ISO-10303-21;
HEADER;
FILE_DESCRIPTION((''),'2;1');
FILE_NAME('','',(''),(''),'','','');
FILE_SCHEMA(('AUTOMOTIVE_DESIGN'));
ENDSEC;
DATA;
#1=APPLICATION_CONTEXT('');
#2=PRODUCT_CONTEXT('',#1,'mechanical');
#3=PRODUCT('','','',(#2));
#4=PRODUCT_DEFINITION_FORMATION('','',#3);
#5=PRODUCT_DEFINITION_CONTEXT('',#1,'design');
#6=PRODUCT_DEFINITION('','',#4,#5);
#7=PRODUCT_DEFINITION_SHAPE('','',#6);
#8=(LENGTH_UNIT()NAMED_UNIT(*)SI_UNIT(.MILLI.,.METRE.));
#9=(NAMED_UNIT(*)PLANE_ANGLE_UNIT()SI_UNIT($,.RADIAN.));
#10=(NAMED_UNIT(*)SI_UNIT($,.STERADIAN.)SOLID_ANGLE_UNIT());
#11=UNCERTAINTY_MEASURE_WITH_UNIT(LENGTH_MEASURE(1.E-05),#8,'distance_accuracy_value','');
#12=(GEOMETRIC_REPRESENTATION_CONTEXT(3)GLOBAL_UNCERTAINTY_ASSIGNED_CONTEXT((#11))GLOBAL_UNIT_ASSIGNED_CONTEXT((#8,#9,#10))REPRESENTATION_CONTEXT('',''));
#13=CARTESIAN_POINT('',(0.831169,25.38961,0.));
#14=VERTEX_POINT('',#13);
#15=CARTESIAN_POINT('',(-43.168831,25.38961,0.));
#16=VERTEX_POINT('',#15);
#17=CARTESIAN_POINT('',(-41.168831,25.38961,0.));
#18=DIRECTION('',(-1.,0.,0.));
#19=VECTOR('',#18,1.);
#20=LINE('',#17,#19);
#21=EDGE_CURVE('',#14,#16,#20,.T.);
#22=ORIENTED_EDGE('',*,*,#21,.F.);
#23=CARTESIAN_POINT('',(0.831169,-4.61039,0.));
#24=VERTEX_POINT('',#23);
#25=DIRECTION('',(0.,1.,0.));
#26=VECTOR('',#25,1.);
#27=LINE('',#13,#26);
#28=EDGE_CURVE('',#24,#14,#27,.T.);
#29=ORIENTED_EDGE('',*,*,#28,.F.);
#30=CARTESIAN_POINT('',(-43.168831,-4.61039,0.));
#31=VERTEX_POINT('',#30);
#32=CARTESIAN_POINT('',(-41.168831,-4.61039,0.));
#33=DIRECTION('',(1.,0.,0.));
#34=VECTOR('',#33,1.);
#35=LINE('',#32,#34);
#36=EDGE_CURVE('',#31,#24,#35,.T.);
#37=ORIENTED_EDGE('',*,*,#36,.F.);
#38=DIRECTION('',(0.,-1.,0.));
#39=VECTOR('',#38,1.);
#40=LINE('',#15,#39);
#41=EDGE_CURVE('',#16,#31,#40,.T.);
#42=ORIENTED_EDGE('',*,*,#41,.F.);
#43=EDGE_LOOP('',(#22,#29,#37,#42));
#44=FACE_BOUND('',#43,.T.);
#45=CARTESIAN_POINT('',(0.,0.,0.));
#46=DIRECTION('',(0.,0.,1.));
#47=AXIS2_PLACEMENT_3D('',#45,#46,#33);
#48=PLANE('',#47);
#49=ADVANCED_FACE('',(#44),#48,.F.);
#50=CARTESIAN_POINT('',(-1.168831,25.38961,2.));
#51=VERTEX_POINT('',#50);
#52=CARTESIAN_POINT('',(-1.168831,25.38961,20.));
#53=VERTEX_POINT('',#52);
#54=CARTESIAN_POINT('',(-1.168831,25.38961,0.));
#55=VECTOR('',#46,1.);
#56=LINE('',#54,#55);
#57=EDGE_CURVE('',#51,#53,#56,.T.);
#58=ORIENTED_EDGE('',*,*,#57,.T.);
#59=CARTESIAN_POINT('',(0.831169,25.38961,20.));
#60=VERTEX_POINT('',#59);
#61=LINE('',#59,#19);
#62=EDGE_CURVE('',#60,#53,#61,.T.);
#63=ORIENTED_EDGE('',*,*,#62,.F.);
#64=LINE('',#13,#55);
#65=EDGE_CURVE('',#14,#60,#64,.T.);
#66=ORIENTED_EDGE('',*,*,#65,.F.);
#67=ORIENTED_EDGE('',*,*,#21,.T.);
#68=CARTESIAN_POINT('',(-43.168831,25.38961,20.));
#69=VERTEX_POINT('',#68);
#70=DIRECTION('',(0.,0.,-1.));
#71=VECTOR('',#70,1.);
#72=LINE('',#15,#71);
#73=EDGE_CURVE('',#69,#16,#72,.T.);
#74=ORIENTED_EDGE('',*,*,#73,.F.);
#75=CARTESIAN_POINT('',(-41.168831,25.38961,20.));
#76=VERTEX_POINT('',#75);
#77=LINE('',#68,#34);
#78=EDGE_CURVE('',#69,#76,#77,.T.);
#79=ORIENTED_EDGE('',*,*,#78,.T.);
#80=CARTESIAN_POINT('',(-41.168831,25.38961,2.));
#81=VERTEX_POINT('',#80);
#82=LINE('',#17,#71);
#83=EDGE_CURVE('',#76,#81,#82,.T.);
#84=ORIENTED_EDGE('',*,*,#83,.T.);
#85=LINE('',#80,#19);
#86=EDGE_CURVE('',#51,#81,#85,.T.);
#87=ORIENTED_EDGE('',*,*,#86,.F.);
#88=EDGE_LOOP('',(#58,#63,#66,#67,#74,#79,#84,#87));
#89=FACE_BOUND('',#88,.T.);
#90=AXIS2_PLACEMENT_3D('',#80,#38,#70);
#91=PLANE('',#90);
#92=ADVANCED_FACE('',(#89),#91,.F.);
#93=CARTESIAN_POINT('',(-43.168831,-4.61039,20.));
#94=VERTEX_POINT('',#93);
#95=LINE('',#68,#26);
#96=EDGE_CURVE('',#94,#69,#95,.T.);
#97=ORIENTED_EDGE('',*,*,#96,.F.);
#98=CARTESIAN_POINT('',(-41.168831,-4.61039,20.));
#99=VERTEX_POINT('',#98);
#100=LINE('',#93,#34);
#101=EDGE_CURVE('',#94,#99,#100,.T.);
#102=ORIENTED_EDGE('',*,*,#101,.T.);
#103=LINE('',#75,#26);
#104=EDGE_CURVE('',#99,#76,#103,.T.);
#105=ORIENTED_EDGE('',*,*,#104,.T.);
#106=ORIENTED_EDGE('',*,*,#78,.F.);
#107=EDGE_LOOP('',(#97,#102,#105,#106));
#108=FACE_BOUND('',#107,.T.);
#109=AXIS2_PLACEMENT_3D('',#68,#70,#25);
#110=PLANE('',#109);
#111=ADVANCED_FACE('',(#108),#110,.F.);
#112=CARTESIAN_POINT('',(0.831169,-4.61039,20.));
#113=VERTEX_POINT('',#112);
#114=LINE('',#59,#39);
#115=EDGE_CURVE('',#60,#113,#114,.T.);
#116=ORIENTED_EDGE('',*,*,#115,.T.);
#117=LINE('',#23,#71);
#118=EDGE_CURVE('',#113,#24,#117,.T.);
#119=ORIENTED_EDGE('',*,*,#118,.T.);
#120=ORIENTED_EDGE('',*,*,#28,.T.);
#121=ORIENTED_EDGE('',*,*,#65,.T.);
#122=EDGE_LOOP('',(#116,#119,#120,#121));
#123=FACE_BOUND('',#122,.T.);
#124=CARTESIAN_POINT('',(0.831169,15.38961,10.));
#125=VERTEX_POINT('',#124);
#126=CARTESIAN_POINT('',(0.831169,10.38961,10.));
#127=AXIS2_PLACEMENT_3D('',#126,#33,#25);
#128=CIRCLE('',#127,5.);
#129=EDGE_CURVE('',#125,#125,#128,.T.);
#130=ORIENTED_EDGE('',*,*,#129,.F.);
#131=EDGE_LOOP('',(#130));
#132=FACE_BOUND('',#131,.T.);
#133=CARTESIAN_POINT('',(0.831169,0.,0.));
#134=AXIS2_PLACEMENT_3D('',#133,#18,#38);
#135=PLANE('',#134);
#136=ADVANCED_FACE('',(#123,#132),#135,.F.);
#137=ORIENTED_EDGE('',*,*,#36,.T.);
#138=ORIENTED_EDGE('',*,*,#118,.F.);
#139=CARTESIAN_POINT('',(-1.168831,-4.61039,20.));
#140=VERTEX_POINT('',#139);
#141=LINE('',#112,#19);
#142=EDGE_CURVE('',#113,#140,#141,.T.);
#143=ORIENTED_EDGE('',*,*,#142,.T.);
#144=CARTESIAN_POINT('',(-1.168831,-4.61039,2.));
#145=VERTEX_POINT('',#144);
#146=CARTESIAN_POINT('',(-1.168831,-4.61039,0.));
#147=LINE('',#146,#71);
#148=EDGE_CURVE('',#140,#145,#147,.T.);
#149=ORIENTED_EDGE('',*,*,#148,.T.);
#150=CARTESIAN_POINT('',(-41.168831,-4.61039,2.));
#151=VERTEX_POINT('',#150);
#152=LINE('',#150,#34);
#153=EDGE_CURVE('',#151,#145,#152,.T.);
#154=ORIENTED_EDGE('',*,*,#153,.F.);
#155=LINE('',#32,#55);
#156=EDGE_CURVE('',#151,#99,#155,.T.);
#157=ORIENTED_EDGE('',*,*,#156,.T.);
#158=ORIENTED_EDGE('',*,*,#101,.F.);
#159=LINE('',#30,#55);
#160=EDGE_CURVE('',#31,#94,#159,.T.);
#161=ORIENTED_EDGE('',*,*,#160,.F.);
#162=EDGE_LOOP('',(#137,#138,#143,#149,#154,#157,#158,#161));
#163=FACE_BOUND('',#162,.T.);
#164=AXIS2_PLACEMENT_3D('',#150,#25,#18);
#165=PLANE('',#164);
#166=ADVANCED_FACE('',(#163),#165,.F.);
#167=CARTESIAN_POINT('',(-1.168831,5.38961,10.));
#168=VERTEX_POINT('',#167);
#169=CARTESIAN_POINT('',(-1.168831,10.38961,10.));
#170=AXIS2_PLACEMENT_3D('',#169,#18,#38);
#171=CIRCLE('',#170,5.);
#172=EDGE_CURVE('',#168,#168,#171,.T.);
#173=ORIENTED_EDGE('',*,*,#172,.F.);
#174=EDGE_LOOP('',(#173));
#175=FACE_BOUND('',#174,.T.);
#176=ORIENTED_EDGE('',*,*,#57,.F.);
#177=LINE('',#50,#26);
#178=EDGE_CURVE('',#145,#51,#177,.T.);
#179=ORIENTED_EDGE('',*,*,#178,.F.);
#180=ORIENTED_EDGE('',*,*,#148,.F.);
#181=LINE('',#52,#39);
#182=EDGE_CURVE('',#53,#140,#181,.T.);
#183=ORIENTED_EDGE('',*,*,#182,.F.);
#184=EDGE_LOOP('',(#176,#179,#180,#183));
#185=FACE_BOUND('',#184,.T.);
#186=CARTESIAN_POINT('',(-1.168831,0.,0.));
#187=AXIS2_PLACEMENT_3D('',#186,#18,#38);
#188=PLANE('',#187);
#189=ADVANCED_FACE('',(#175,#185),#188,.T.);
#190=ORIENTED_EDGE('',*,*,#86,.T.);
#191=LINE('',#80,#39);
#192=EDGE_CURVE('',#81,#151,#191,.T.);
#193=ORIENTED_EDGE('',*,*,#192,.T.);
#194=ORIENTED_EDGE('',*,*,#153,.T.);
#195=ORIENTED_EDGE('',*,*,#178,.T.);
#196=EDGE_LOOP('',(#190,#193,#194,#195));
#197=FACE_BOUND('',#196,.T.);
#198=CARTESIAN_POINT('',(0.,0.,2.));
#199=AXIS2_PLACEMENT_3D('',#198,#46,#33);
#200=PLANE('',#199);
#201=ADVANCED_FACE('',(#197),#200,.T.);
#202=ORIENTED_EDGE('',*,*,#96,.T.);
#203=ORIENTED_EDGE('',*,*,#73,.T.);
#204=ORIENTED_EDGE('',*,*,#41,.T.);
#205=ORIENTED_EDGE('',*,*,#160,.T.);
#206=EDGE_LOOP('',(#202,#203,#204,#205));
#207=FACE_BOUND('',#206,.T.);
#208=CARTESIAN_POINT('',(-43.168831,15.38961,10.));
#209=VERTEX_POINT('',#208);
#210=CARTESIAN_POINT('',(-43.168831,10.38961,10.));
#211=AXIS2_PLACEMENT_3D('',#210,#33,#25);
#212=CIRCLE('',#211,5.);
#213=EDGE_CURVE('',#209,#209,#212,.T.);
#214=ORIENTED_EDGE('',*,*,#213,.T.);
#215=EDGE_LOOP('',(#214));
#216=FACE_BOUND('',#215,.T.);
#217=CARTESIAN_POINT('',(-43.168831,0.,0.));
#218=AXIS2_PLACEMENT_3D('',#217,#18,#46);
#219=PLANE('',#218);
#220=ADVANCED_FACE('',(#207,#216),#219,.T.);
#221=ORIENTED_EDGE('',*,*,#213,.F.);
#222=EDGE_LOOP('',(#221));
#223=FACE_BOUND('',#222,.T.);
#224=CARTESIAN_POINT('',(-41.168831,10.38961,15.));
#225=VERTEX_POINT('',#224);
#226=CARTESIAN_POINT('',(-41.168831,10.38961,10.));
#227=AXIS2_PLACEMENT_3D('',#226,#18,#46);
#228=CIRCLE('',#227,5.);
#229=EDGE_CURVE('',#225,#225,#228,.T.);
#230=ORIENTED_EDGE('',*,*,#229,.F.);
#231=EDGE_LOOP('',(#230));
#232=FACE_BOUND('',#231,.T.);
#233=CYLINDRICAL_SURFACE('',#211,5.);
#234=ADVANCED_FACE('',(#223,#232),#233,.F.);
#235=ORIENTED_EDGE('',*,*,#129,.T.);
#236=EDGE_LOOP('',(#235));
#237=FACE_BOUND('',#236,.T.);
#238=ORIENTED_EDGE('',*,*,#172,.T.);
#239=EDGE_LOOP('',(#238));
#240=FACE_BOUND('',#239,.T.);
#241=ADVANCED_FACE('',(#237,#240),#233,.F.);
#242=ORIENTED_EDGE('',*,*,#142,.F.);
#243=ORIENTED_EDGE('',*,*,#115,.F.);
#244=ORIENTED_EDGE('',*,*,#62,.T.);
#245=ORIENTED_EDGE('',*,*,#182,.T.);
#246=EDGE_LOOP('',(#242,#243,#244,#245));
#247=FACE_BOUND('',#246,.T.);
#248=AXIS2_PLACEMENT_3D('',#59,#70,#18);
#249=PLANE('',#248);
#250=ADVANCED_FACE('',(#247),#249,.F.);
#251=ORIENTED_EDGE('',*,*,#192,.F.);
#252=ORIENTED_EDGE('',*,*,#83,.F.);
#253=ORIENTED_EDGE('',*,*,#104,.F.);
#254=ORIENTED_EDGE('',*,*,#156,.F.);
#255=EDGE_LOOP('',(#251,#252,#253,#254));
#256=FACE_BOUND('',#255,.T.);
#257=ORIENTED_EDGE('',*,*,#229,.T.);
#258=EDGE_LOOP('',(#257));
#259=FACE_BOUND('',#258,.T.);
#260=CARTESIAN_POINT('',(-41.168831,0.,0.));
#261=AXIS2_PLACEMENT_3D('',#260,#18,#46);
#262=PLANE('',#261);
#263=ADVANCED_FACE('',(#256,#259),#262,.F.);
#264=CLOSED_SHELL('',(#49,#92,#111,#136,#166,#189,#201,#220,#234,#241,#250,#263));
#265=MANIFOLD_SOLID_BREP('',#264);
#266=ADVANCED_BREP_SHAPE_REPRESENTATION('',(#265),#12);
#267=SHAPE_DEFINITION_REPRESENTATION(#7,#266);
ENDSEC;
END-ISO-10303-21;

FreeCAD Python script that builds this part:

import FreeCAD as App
import Part
import Sketcher
from FreeCAD import Vector

doc = App.newDocument("Part")
body = doc.addObject("PartDesign::Body", "Body")

# Sketch on XY plane
sketch1 = body.newObject("Sketcher::SketchObject", "Sketch")
sketch1.AttachmentSupport = (doc.getObject("XY_Plane"), [""])
sketch1.MapMode = "FlatFace"
sketch1.addGeometry(Part.LineSegment(Vector(-41, 25, 0), Vector(-41, -5, 0)), False)
sketch1.addGeometry(Part.LineSegment(Vector(-41, -5, 0), Vector(-1, -5, 0)), False)
sketch1.addGeometry(Part.LineSegment(Vector(-1, -5, 0), Vector(-1, 25, 0)), False)
sketch1.addGeometry(Part.LineSegment(Vector(-1, 25, 0), Vector(-41, 25, 0)), False)
sketch1.addConstraint(Sketcher.Constraint("Coincident", 0, 2, 1, 1))
sketch1.addConstraint(Sketcher.Constraint("Coincident", 1, 2, 2, 1))
sketch1.addConstraint(Sketcher.Constraint("Coincident", 2, 2, 3, 1))
sketch1.addConstraint(Sketcher.Constraint("Coincident", 3, 2, 0, 1))
sketch1.addConstraint(Sketcher.Constraint("Vertical", 0))
sketch1.addConstraint(Sketcher.Constraint("Horizontal", 1))
sketch1.addConstraint(Sketcher.Constraint("Vertical", 2))
sketch1.addConstraint(Sketcher.Constraint("Horizontal", 3))
sketch1.addConstraint(Sketcher.Constraint("DistanceX", 1, 1, 1, 2, 40.0))
sketch1.addConstraint(Sketcher.Constraint("DistanceY", 0, 2, 0, 1, 30.0))
sketch1.addConstraint(Sketcher.Constraint("DistanceX", 0, 2, -1, 1, 41.168831))
sketch1.addConstraint(Sketcher.Constraint("DistanceY", 0, 2, -1, 1, 4.61039))
pad1 = body.newObject("PartDesign::Pad", "Pad")
pad1.Profile = sketch1
pad1.Length = 2

# Sketch on YZ plane
sketch2 = body.newObject("Sketcher::SketchObject", "Sketch001")
sketch2.AttachmentSupport = (doc.getObject("YZ_Plane"), [""])
sketch2.MapMode = "FlatFace"
sketch2.AttachmentOffset = App.Placement(Vector(0, 0, -41.168831), App.Rotation())
sketch2.addGeometry(Part.LineSegment(Vector(25, 0, 0), Vector(-5, 0, 0)), False)
sketch2.addGeometry(Part.LineSegment(Vector(-5, 0, 0), Vector(-5, 20, 0)), False)
sketch2.addGeometry(Part.LineSegment(Vector(-5, 20, 0), Vector(25, 20, 0)), False)
sketch2.addGeometry(Part.LineSegment(Vector(25, 20, 0), Vector(25, 0, 0)), False)
sketch2.addConstraint(Sketcher.Constraint("Coincident", 0, 2, 1, 1))
sketch2.addConstraint(Sketcher.Constraint("Coincident", 1, 2, 2, 1))
sketch2.addConstraint(Sketcher.Constraint("Coincident", 2, 2, 3, 1))
sketch2.addConstraint(Sketcher.Constraint("Coincident", 3, 2, 0, 1))
sketch2.addConstraint(Sketcher.Constraint("Horizontal", 0))
sketch2.addConstraint(Sketcher.Constraint("Vertical", 1))
sketch2.addConstraint(Sketcher.Constraint("Horizontal", 2))
sketch2.addConstraint(Sketcher.Constraint("Vertical", 3))
sketch2.addConstraint(Sketcher.Constraint("PointOnObject", 0, 2, -1))
sketch2.addConstraint(Sketcher.Constraint("DistanceX", 0, 2, 0, 1, 30.0))
sketch2.addConstraint(Sketcher.Constraint("DistanceY", 1, 1, 1, 2, 20.0))
sketch2.addConstraint(Sketcher.Constraint("DistanceX", 0, 2, -1, 1, 4.61039))
pad2 = body.newObject("PartDesign::Pad", "Pad001")
pad2.Profile = sketch2
pad2.Length = 2
pad2.Reversed = True

# Sketch on YZ plane
sketch3 = body.newObject("Sketcher::SketchObject", "Sketch002")
sketch3.AttachmentSupport = (doc.getObject("YZ_Plane"), [""])
sketch3.MapMode = "FlatFace"
sketch3.AttachmentOffset = App.Placement(Vector(0, 0, -1.168831), App.Rotation())
sketch3.addGeometry(Part.LineSegment(Vector(25, 20, 0), Vector(-5, 20, 0)), False)
sketch3.addGeometry(Part.LineSegment(Vector(-5, 20, 0), Vector(-5, 0, 0)), False)
sketch3.addGeometry(Part.LineSegment(Vector(-5, 0, 0), Vector(25, 0, 0)), False)
sketch3.addGeometry(Part.LineSegment(Vector(25, 0, 0), Vector(25, 20, 0)), False)
sketch3.addConstraint(Sketcher.Constraint("Coincident", 0, 2, 1, 1))
sketch3.addConstraint(Sketcher.Constraint("Coincident", 1, 2, 2, 1))
sketch3.addConstraint(Sketcher.Constraint("Coincident", 2, 2, 3, 1))
sketch3.addConstraint(Sketcher.Constraint("Coincident", 3, 2, 0, 1))
sketch3.addConstraint(Sketcher.Constraint("Horizontal", 0))
sketch3.addConstraint(Sketcher.Constraint("Vertical", 1))
sketch3.addConstraint(Sketcher.Constraint("Horizontal", 2))
sketch3.addConstraint(Sketcher.Constraint("Vertical", 3))
sketch3.addConstraint(Sketcher.Constraint("PointOnObject", 1, 2, -1))
sketch3.addConstraint(Sketcher.Constraint("DistanceX", 0, 2, 0, 1, 30.0))
sketch3.addConstraint(Sketcher.Constraint("DistanceY", 1, 2, 1, 1, 20.0))
sketch3.addConstraint(Sketcher.Constraint("DistanceX", 0, 2, -1, 1, 4.61039))
pad3 = body.newObject("PartDesign::Pad", "Pad002")
pad3.Profile = sketch3
pad3.Length = 2

# Sketch on YZ plane
sketch4 = body.newObject("Sketcher::SketchObject", "Sketch003")
sketch4.AttachmentSupport = (doc.getObject("YZ_Plane"), [""])
sketch4.MapMode = "FlatFace"
sketch4.AttachmentOffset = App.Placement(Vector(0, 0, 0.831169), App.Rotation())
sketch4.addGeometry(Part.Circle(Vector(10, 10, 0), Vector(0, 0, 1), 5), False)
sketch4.addConstraint(Sketcher.Constraint("Diameter", 0, 10.0))
sketch4.addConstraint(Sketcher.Constraint("DistanceY", -1, 1, 0, 3, 10.0))
sketch4.addConstraint(Sketcher.Constraint("DistanceX", -1, 1, 0, 3, 10.38961))
pocket1 = body.newObject("PartDesign::Pocket", "Pocket")
pocket1.Profile = sketch4
pocket1.Type = "ThroughAll"

doc.recompute()
